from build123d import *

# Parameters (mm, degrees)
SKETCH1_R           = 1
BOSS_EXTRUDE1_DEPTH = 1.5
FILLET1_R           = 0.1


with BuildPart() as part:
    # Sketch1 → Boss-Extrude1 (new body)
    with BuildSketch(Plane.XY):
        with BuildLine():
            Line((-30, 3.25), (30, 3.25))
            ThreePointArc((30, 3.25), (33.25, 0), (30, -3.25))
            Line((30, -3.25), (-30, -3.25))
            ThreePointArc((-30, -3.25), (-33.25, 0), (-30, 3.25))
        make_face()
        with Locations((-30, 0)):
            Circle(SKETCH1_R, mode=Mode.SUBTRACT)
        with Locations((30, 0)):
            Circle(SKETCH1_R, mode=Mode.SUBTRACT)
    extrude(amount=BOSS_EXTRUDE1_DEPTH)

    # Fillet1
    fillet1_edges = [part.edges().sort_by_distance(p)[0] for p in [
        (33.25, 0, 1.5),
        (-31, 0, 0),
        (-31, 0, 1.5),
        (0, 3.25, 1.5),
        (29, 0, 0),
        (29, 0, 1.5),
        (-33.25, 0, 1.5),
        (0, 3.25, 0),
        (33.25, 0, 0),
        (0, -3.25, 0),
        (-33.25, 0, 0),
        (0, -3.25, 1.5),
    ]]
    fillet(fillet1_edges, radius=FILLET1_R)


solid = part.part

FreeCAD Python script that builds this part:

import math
import FreeCAD as App
import Part
import Sketcher

V = App.Vector


def edges_at(feature, points):
    """Names of the edges that pass closest to the given points."""
    edges = feature.Shape.Edges
    near = lambda p: min(range(len(edges)), key=lambda i: edges[i].distToShape(Part.Vertex(*p))[0])
    return sorted({f"Edge{near(p) + 1}" for p in points})

doc = App.newDocument("Part")
body = doc.addObject("PartDesign::Body", "Body")

# Sketch on XY plane
sketch1 = body.newObject("Sketcher::SketchObject", "Sketch")
sketch1.AttachmentSupport = (doc.getObject("XY_Plane"), [""])
sketch1.MapMode = "FlatFace"
sketch1.addGeometry([
    Part.LineSegment(V(30, 3.25, 0), V(-30, 3.25, 0)),  # 0
    Part.ArcOfCircle(Part.Circle(V(-30, 0, 0), V(0, 0, 1), 3.25), math.radians(90), math.radians(270)),  # 1
    Part.LineSegment(V(-30, -3.25, 0), V(30, -3.25, 0)),  # 2
    Part.ArcOfCircle(Part.Circle(V(30, 0, 0), V(0, 0, 1), 3.25), math.radians(-90), math.radians(90)),  # 3
    Part.Circle(V(30, 0, 0), V(0, 0, 1), 1),  # 4
    Part.Circle(V(-30, 0, 0), V(0, 0, 1), 1),  # 5
], False)
sketch1.addConstraint([
    Sketcher.Constraint("Tangent", 0, 2, 1, 1),
    Sketcher.Constraint("Tangent", 1, 2, 2, 1),
    Sketcher.Constraint("Tangent", 2, 2, 3, 1),
    Sketcher.Constraint("Tangent", 3, 2, 0, 1),
    Sketcher.Constraint("Horizontal", 0),
    Sketcher.Constraint("Horizontal", 2),
    Sketcher.Constraint("Coincident", 4, 3, 3, 3),
    Sketcher.Constraint("Coincident", 5, 3, 1, 3),
    Sketcher.Constraint("Equal", 4, 5),
    Sketcher.Constraint("Symmetric", 1, 3, 3, 3, -1, 1),
    Sketcher.Constraint("Diameter", 4, 2.0),
    Sketcher.Constraint("DistanceX", 0, 2, 0, 1, 60.0),
    Sketcher.Constraint("Radius", 1, 3.25),
])
pad1 = body.newObject("PartDesign::Pad", "Pad")
pad1.Profile = sketch1
pad1.Length = 1.5
doc.recompute()

fillet = body.newObject("PartDesign::Fillet", "Fillet")
fillet.Base = (pad1, edges_at(pad1, [
    (33.25, 0, 1.5),
    (-31, 0, 0),
    (-31, 0, 1.5),
    (0, 3.25, 1.5),
    (29, 0, 0),
    (29, 0, 1.5),
    (-33.25, 0, 1.5),
    (0, 3.25, 0),
    (33.25, 0, 0),
    (0, -3.25, 0),
    (-33.25, 0, 0),
    (0, -3.25, 1.5),
]))
fillet.Radius = 0.1

doc.recompute()
